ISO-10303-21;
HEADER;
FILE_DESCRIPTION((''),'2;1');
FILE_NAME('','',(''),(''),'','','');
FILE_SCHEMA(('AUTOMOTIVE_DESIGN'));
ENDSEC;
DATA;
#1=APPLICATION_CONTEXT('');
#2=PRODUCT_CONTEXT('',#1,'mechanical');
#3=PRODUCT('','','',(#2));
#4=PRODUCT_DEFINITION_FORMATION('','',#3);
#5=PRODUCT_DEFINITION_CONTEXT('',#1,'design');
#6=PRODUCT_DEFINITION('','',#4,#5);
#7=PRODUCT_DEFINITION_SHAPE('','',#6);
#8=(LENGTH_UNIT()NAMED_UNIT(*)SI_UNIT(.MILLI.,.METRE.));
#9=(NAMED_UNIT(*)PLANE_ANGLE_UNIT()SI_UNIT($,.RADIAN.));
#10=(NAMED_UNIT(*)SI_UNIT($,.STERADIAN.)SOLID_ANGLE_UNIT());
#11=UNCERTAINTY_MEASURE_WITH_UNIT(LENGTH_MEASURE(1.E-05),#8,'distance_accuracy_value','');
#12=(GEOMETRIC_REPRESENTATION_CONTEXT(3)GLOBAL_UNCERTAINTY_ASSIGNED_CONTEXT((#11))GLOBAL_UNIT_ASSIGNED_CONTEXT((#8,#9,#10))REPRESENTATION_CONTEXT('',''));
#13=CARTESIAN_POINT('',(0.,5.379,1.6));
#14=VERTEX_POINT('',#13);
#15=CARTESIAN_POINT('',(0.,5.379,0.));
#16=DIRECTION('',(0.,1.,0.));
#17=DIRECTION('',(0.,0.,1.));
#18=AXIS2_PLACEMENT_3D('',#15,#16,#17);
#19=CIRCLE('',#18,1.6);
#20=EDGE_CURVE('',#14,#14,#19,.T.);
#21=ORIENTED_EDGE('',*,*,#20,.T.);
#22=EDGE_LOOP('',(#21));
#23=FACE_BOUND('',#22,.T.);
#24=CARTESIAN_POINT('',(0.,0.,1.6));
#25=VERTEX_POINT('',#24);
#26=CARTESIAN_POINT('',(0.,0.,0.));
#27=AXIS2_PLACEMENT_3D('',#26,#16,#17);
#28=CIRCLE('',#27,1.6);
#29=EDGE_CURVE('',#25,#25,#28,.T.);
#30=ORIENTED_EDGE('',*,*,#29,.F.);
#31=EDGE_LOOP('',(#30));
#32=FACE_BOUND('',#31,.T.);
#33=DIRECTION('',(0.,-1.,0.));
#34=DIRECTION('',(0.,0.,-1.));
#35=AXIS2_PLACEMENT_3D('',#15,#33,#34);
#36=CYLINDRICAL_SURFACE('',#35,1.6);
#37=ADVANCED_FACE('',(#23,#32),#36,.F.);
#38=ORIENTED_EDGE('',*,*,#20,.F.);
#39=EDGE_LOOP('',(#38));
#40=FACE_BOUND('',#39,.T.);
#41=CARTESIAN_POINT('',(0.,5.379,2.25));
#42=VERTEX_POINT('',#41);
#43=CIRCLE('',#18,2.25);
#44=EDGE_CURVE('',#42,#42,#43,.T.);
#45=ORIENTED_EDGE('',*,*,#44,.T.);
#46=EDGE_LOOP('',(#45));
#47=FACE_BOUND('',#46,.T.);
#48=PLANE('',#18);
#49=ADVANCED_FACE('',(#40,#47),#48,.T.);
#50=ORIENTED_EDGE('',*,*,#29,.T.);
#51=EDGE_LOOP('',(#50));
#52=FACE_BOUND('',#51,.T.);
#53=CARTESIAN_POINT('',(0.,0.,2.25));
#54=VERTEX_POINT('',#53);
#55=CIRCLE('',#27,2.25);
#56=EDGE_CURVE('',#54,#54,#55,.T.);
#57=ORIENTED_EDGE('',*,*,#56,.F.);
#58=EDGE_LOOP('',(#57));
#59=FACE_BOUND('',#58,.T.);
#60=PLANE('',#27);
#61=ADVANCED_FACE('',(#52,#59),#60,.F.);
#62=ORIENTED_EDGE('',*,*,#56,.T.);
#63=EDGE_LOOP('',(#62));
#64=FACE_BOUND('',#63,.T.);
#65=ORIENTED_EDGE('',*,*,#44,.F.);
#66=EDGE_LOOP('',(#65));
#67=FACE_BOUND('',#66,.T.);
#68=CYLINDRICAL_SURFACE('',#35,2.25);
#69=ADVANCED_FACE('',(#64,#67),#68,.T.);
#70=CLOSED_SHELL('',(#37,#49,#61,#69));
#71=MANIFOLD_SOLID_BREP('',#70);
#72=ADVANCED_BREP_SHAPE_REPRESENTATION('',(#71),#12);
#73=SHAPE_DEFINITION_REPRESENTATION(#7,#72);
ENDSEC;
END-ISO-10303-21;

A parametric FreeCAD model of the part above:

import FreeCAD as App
import Part
import Sketcher
Q = App.Units.Quantity

doc = App.newDocument("Part")
body = doc.addObject("PartDesign::Body", "Body")

# Sketch on XZ plane
sketch1 = body.newObject("Sketcher::SketchObject", "Sketch")
sketch1.AttachmentSupport = (doc.getObject("XZ_Plane"), [""])
sketch1.MapMode = "FlatFace"
sketch1.addGeometry([
    Part.Circle(App.Vector(0, 0, 0), App.Vector(0, 0, 1), 2.2),
    Part.Circle(App.Vector(0, 0, 0), App.Vector(0, 0, 1), 1.6),
], False)
sketch1.addConstraint([
    Sketcher.Constraint("Coincident", 0, 3, -1, 1),
    Sketcher.Constraint("Coincident", 1, 3, -1, 1),
    Sketcher.Constraint("Diameter", 0, Q("4.5 mm")),
    Sketcher.Constraint("Diameter", 1, Q("3.2 mm")),
])
pad1 = body.newObject("PartDesign::Pad", "Pad")
pad1.Profile = sketch1
pad1.Length = 5.379
pad1.Reversed = True

doc.recompute()
